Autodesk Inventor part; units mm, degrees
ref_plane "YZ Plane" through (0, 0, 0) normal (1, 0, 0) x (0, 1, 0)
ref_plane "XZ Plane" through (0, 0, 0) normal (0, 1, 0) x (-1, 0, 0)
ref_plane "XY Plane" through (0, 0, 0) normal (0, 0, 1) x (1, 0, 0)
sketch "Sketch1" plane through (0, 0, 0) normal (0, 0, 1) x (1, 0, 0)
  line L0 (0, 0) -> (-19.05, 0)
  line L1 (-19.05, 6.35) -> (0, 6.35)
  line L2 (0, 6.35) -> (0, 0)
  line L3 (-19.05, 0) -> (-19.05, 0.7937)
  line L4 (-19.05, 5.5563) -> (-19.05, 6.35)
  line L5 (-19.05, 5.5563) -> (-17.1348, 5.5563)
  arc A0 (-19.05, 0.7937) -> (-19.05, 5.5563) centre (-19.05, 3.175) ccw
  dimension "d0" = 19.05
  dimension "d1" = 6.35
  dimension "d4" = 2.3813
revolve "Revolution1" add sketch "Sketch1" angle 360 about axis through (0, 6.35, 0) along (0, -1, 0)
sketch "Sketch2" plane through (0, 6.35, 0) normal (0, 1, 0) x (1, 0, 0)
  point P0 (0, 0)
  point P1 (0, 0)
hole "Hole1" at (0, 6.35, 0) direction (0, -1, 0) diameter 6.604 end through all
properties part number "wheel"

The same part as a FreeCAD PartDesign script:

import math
import FreeCAD as App
import Part
import Sketcher
from FreeCAD import Vector
Q = App.Units.Quantity

doc = App.newDocument("Part")
body = doc.addObject("PartDesign::Body", "Body")

# Sketch on XY plane
sketch1 = body.newObject("Sketcher::SketchObject", "Sketch")
sketch1.AttachmentSupport = (doc.getObject("XY_Plane"), [""])
sketch1.MapMode = "FlatFace"
sketch1.addGeometry(Part.LineSegment(Vector(-19.1, 0, 0), Vector(0, 0, 0)), False)
sketch1.addGeometry(Part.LineSegment(Vector(0, 0, 0), Vector(0, 6.3, 0)), False)
sketch1.addGeometry(Part.LineSegment(Vector(0, 6.3, 0), Vector(-19.1, 6.3, 0)), False)
sketch1.addGeometry(Part.LineSegment(Vector(-19.1, 6.3, 0), Vector(-19.1, 5.6, 0)), False)
sketch1.addGeometry(Part.ArcOfCircle(Part.Circle(Vector(-19.1, 3.2, 0), Vector(0, 0, 1), 2.4), math.radians(-90), math.radians(90)), False)
sketch1.addGeometry(Part.LineSegment(Vector(-19.1, 0.8, 0), Vector(-19.1, 0, 0)), False)
sketch1.addConstraint(Sketcher.Constraint("Coincident", 0, 2, 1, 1))
sketch1.addConstraint(Sketcher.Constraint("Coincident", 1, 2, 2, 1))
sketch1.addConstraint(Sketcher.Constraint("Coincident", 2, 2, 3, 1))
sketch1.addConstraint(Sketcher.Constraint("Coincident", 3, 2, 4, 2))
sketch1.addConstraint(Sketcher.Constraint("Coincident", 4, 1, 5, 1))
sketch1.addConstraint(Sketcher.Constraint("Coincident", 5, 2, 0, 1))
sketch1.addConstraint(Sketcher.Constraint("Horizontal", 0))
sketch1.addConstraint(Sketcher.Constraint("Vertical", 1))
sketch1.addConstraint(Sketcher.Constraint("Horizontal", 2))
sketch1.addConstraint(Sketcher.Constraint("Vertical", 3))
sketch1.addConstraint(Sketcher.Constraint("Vertical", 5))
sketch1.addConstraint(Sketcher.Constraint("Coincident", 0, 2, -1, 1))
sketch1.addConstraint(Sketcher.Constraint("Vertical", 4, 3, 2, 2))
sketch1.addConstraint(Sketcher.Constraint("Vertical", 3, 2, 4, 1))
sketch1.addConstraint(Sketcher.Constraint("Equal", 3, 5))
sketch1.addConstraint(Sketcher.Constraint("Radius", 4, Q("0.093752 in")))
sketch1.addConstraint(Sketcher.Constraint("DistanceX", 0, 1, 0, 2, Q("0.75 in")))
sketch1.addConstraint(Sketcher.Constraint("DistanceY", 1, 1, 1, 2, Q("0.25 in")))
revolution = body.newObject("PartDesign::Revolution", "Revolution")
revolution.Profile = sketch1
revolution.ReferenceAxis = (sketch1, ["V_Axis"])
revolution.Angle = 360

# Sketch on XZ plane
sketch2 = body.newObject("Sketcher::SketchObject", "Sketch001")
sketch2.AttachmentSupport = (doc.getObject("XZ_Plane"), [""])
sketch2.MapMode = "FlatFace"
sketch2.AttachmentOffset = App.Placement(Vector(0, 0, -0.25 * 25.4), App.Rotation())
sketch2.addGeometry(Part.Circle(Vector(0, 0, 0), Vector(0, 0, 1), 3.3), False)
sketch2.addConstraint(Sketcher.Constraint("Coincident", 0, 3, -1, 1))
sketch2.addConstraint(Sketcher.Constraint("Diameter", 0, Q("0.26 in")))
doc.recompute()
hole = body.newObject("PartDesign::Hole", "Hole")
hole.Profile = sketch2
hole.ThreadType = "None"
hole.Diameter = Q("0.26 in")
hole.DepthType = "ThroughAll"
hole.Reversed = True

doc.recompute()
